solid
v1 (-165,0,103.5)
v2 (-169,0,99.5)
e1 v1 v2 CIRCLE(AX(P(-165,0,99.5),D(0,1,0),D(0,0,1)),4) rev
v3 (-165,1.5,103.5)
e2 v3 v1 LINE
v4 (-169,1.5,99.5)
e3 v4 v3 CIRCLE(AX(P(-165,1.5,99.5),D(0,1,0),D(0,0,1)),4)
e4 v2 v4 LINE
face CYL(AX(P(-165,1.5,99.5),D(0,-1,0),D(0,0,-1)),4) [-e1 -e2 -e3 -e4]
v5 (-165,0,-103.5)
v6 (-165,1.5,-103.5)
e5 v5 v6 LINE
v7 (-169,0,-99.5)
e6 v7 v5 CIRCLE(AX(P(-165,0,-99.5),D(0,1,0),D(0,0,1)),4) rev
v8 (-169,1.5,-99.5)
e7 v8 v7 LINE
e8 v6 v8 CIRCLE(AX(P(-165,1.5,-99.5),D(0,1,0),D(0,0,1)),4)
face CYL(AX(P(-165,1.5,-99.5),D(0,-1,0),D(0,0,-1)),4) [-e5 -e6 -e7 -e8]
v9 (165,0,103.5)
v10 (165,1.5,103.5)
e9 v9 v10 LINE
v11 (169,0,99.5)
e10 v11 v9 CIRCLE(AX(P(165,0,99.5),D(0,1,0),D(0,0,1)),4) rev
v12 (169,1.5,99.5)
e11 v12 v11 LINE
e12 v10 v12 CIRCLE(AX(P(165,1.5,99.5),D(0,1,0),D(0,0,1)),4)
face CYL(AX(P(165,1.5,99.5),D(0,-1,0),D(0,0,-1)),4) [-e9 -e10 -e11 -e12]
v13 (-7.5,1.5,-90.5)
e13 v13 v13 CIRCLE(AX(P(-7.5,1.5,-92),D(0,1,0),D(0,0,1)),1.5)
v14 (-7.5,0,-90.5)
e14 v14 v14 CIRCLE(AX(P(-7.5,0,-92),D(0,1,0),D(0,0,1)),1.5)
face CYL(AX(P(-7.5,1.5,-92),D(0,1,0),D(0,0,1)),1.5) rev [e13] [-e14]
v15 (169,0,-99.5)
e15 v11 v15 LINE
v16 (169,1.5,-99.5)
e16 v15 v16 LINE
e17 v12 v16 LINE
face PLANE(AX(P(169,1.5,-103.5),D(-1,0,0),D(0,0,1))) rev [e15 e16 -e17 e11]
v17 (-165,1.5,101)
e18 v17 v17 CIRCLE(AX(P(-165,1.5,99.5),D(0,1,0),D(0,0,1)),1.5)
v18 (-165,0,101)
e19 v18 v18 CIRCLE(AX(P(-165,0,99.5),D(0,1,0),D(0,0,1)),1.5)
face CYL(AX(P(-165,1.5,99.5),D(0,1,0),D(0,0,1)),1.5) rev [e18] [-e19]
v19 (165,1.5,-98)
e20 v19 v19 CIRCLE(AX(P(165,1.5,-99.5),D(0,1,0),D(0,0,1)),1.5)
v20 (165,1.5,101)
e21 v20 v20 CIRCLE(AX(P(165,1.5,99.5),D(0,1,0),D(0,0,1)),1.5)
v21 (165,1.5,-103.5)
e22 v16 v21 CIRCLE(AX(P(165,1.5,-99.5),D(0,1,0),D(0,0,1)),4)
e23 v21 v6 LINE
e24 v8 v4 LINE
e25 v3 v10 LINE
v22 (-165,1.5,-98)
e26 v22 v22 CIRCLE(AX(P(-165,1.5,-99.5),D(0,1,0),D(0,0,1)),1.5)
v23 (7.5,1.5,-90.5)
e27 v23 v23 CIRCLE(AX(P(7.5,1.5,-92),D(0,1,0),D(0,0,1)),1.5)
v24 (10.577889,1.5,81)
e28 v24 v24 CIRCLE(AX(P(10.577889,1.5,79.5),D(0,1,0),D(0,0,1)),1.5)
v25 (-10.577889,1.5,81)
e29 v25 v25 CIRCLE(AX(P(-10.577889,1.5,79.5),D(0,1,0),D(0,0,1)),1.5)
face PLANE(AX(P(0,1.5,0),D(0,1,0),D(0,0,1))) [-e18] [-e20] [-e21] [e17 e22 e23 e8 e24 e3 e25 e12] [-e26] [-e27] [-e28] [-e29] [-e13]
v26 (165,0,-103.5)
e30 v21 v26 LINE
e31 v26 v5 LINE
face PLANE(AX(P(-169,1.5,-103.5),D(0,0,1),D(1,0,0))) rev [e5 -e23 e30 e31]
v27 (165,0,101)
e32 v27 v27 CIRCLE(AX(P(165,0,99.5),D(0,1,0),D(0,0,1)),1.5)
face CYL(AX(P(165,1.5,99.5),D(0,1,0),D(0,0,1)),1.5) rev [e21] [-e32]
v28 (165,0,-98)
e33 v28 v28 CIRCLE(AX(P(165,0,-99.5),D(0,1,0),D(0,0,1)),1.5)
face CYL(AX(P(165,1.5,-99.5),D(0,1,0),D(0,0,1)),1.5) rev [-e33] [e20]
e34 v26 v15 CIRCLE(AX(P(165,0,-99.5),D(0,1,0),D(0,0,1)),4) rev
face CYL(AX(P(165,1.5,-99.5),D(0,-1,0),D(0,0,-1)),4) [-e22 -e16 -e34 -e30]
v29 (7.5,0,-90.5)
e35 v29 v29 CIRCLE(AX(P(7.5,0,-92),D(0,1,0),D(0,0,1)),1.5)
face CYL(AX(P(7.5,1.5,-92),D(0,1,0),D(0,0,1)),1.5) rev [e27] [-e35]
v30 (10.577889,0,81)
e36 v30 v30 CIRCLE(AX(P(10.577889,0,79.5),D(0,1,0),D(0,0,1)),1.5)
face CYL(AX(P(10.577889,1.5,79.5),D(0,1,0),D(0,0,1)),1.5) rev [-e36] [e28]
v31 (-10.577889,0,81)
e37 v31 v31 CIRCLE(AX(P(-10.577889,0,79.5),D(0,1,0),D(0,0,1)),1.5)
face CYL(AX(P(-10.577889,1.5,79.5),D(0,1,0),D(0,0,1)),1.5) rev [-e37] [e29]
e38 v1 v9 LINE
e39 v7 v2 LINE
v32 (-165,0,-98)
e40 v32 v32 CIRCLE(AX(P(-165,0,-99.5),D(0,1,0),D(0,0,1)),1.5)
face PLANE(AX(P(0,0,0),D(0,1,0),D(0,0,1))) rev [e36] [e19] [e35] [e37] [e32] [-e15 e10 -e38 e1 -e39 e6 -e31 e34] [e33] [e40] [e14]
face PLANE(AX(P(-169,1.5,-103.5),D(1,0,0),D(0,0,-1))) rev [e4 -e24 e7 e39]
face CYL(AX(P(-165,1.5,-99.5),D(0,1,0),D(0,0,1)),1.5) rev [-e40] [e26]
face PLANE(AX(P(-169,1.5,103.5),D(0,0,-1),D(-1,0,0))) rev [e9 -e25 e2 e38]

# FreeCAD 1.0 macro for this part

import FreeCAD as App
import Part
import Sketcher
from FreeCAD import Vector
Q = App.Units.Quantity


def edges_at(feature, points):
    """Names of the edges that pass closest to the given points."""
    edges = feature.Shape.Edges
    near = lambda p: min(range(len(edges)), key=lambda i: edges[i].distToShape(Part.Vertex(*p))[0])
    return sorted({f"Edge{near(p) + 1}" for p in points})

doc = App.newDocument("Part")
params = doc.addObject("Spreadsheet::Sheet", "Params")
for row, (alias, value) in enumerate([
    ("sketch1_width", "338 mm"),
    ("sketch1_height", "207 mm"),
    ("pad1_length", "1.5 mm"),
    ("fillet_radius", "4 mm"),
    ("sketch2_diameter", "3 mm"),
    ("hole_diameter", "3 mm"),
    ("hole_depth", "17.29 mm"),
], start=1):
    params.set(f"A{row}", alias)
    params.set(f"B{row}", "=" + value)
    params.setAlias(f"B{row}", alias)

body = doc.addObject("PartDesign::Body", "Body")

# Sketch on XZ plane
sketch1 = body.newObject("Sketcher::SketchObject", "Sketch")
sketch1.AttachmentSupport = (doc.getObject("XZ_Plane"), [""])
sketch1.MapMode = "FlatFace"
sketch1.addGeometry([
    Part.LineSegment(Vector(-169, -103.5, 0), Vector(-169, 103.5, 0)),
    Part.LineSegment(Vector(-169, 103.5, 0), Vector(169, 103.5, 0)),
    Part.LineSegment(Vector(169, 103.5, 0), Vector(169, -103.5, 0)),
    Part.LineSegment(Vector(169, -103.5, 0), Vector(-169, -103.5, 0)),
], False)
sketch1.addConstraint([
    Sketcher.Constraint("Coincident", 0, 2, 1, 1),
    Sketcher.Constraint("Coincident", 1, 2, 2, 1),
    Sketcher.Constraint("Coincident", 2, 2, 3, 1),
    Sketcher.Constraint("Coincident", 3, 2, 0, 1),
    Sketcher.Constraint("Vertical", 0),
    Sketcher.Constraint("Horizontal", 1),
    Sketcher.Constraint("Vertical", 2),
    Sketcher.Constraint("Horizontal", 3),
    Sketcher.Constraint("Symmetric", 0, 2, 2, 2, -1, 1),
    Sketcher.Constraint("DistanceX", 1, 1, 1, 2, Q("338 mm")),
    Sketcher.Constraint("DistanceY", 0, 1, 0, 2, Q("207 mm")),
])
sketch1.setExpression("Constraints[9]", "Params.sketch1_width")
sketch1.setExpression("Constraints[10]", "Params.sketch1_height")
pad1 = body.newObject("PartDesign::Pad", "Pad")
pad1.Profile = sketch1
pad1.setExpression("Length", "Params.pad1_length")
pad1.Reversed = True
doc.recompute()

fillet = body.newObject("PartDesign::Fillet", "Fillet")
fillet.Base = (pad1, edges_at(pad1, [
    (-169, 0.75, -103.5),
    (169, 0.75, -103.5),
    (169, 0.75, 103.5),
    (-169, 0.75, 103.5),
]))
fillet.setExpression("Radius", "Params.fillet_radius")

# Sketch on XZ plane
sketch2 = body.newObject("Sketcher::SketchObject", "Sketch001")
sketch2.AttachmentSupport = (doc.getObject("XZ_Plane"), [""])
sketch2.MapMode = "FlatFace"
sketch2.AttachmentOffset = App.Placement(Vector(0, 0, -1.5), App.Rotation())
sketch2.addGeometry([
    Part.Circle(Vector(-165, 99.5, 0), Vector(0, 0, 1), 1.5),  # 0
    Part.Circle(Vector(-165, -99.5, 0), Vector(0, 0, 1), 1.5),  # 1
    Part.Circle(Vector(165, -99.5, 0), Vector(0, 0, 1), 1.5),  # 2
    Part.Circle(Vector(165, 99.5, 0), Vector(0, 0, 1), 1.5),  # 3
    Part.Circle(Vector(-10.577889, 79.5, 0), Vector(0, 0, 1), 1.5),  # 4
    Part.Circle(Vector(10.577889, 79.5, 0), Vector(0, 0, 1), 1.5),  # 5
    Part.Circle(Vector(-7.5, -92, 0), Vector(0, 0, 1), 1.5),  # 6
    Part.Circle(Vector(7.5, -92, 0), Vector(0, 0, 1), 1.5),  # 7
], False)
sketch2.addConstraint([
    Sketcher.Constraint("Equal", 0, 1),
    Sketcher.Constraint("Equal", 1, 2),
    Sketcher.Constraint("Equal", 2, 3),
    Sketcher.Constraint("Equal", 3, 4),
    Sketcher.Constraint("Equal", 4, 5),
    Sketcher.Constraint("Equal", 5, 6),
    Sketcher.Constraint("Equal", 6, 7),
    Sketcher.Constraint("Symmetric", 0, 3, 2, 3, -1, 1),
    Sketcher.Constraint("Symmetric", 1, 3, 3, 3, -1, 1),
    Sketcher.Constraint("Symmetric", 1, 3, 2, 3, -2),
    Sketcher.Constraint("Symmetric", 4, 3, 5, 3, -2),
    Sketcher.Constraint("Symmetric", 6, 3, 7, 3, -2),
    Sketcher.Constraint("Diameter", 0, Q("3 mm")),
    Sketcher.Constraint("DistanceX", 0, 3, -1, 1, Q("165 mm")),
    Sketcher.Constraint("DistanceY", 6, 3, -1, 1, Q("92 mm")),
    Sketcher.Constraint("DistanceY", 1, 3, 0, 3, Q("199 mm")),
    Sketcher.Constraint("DistanceY", 4, 3, 0, 3, Q("20 mm")),
    Sketcher.Constraint("DistanceX", 6, 3, 7, 3, Q("15 mm")),
    Sketcher.Constraint("DistanceX", 4, 3, -1, 1, Q("10.577889 mm")),
])
sketch2.setExpression("Constraints[12]", "Params.sketch2_diameter")
doc.recompute()
hole = body.newObject("PartDesign::Hole", "Hole")
hole.Profile = sketch2
hole.ThreadType = "None"
hole.setExpression("Diameter", "Params.hole_diameter")
hole.DepthType = "Dimension"
hole.setExpression("Depth", "Params.hole_depth")
hole.DrillPoint = "Angled"
hole.DrillPointAngle = 118
hole.Reversed = True

doc.recompute()
